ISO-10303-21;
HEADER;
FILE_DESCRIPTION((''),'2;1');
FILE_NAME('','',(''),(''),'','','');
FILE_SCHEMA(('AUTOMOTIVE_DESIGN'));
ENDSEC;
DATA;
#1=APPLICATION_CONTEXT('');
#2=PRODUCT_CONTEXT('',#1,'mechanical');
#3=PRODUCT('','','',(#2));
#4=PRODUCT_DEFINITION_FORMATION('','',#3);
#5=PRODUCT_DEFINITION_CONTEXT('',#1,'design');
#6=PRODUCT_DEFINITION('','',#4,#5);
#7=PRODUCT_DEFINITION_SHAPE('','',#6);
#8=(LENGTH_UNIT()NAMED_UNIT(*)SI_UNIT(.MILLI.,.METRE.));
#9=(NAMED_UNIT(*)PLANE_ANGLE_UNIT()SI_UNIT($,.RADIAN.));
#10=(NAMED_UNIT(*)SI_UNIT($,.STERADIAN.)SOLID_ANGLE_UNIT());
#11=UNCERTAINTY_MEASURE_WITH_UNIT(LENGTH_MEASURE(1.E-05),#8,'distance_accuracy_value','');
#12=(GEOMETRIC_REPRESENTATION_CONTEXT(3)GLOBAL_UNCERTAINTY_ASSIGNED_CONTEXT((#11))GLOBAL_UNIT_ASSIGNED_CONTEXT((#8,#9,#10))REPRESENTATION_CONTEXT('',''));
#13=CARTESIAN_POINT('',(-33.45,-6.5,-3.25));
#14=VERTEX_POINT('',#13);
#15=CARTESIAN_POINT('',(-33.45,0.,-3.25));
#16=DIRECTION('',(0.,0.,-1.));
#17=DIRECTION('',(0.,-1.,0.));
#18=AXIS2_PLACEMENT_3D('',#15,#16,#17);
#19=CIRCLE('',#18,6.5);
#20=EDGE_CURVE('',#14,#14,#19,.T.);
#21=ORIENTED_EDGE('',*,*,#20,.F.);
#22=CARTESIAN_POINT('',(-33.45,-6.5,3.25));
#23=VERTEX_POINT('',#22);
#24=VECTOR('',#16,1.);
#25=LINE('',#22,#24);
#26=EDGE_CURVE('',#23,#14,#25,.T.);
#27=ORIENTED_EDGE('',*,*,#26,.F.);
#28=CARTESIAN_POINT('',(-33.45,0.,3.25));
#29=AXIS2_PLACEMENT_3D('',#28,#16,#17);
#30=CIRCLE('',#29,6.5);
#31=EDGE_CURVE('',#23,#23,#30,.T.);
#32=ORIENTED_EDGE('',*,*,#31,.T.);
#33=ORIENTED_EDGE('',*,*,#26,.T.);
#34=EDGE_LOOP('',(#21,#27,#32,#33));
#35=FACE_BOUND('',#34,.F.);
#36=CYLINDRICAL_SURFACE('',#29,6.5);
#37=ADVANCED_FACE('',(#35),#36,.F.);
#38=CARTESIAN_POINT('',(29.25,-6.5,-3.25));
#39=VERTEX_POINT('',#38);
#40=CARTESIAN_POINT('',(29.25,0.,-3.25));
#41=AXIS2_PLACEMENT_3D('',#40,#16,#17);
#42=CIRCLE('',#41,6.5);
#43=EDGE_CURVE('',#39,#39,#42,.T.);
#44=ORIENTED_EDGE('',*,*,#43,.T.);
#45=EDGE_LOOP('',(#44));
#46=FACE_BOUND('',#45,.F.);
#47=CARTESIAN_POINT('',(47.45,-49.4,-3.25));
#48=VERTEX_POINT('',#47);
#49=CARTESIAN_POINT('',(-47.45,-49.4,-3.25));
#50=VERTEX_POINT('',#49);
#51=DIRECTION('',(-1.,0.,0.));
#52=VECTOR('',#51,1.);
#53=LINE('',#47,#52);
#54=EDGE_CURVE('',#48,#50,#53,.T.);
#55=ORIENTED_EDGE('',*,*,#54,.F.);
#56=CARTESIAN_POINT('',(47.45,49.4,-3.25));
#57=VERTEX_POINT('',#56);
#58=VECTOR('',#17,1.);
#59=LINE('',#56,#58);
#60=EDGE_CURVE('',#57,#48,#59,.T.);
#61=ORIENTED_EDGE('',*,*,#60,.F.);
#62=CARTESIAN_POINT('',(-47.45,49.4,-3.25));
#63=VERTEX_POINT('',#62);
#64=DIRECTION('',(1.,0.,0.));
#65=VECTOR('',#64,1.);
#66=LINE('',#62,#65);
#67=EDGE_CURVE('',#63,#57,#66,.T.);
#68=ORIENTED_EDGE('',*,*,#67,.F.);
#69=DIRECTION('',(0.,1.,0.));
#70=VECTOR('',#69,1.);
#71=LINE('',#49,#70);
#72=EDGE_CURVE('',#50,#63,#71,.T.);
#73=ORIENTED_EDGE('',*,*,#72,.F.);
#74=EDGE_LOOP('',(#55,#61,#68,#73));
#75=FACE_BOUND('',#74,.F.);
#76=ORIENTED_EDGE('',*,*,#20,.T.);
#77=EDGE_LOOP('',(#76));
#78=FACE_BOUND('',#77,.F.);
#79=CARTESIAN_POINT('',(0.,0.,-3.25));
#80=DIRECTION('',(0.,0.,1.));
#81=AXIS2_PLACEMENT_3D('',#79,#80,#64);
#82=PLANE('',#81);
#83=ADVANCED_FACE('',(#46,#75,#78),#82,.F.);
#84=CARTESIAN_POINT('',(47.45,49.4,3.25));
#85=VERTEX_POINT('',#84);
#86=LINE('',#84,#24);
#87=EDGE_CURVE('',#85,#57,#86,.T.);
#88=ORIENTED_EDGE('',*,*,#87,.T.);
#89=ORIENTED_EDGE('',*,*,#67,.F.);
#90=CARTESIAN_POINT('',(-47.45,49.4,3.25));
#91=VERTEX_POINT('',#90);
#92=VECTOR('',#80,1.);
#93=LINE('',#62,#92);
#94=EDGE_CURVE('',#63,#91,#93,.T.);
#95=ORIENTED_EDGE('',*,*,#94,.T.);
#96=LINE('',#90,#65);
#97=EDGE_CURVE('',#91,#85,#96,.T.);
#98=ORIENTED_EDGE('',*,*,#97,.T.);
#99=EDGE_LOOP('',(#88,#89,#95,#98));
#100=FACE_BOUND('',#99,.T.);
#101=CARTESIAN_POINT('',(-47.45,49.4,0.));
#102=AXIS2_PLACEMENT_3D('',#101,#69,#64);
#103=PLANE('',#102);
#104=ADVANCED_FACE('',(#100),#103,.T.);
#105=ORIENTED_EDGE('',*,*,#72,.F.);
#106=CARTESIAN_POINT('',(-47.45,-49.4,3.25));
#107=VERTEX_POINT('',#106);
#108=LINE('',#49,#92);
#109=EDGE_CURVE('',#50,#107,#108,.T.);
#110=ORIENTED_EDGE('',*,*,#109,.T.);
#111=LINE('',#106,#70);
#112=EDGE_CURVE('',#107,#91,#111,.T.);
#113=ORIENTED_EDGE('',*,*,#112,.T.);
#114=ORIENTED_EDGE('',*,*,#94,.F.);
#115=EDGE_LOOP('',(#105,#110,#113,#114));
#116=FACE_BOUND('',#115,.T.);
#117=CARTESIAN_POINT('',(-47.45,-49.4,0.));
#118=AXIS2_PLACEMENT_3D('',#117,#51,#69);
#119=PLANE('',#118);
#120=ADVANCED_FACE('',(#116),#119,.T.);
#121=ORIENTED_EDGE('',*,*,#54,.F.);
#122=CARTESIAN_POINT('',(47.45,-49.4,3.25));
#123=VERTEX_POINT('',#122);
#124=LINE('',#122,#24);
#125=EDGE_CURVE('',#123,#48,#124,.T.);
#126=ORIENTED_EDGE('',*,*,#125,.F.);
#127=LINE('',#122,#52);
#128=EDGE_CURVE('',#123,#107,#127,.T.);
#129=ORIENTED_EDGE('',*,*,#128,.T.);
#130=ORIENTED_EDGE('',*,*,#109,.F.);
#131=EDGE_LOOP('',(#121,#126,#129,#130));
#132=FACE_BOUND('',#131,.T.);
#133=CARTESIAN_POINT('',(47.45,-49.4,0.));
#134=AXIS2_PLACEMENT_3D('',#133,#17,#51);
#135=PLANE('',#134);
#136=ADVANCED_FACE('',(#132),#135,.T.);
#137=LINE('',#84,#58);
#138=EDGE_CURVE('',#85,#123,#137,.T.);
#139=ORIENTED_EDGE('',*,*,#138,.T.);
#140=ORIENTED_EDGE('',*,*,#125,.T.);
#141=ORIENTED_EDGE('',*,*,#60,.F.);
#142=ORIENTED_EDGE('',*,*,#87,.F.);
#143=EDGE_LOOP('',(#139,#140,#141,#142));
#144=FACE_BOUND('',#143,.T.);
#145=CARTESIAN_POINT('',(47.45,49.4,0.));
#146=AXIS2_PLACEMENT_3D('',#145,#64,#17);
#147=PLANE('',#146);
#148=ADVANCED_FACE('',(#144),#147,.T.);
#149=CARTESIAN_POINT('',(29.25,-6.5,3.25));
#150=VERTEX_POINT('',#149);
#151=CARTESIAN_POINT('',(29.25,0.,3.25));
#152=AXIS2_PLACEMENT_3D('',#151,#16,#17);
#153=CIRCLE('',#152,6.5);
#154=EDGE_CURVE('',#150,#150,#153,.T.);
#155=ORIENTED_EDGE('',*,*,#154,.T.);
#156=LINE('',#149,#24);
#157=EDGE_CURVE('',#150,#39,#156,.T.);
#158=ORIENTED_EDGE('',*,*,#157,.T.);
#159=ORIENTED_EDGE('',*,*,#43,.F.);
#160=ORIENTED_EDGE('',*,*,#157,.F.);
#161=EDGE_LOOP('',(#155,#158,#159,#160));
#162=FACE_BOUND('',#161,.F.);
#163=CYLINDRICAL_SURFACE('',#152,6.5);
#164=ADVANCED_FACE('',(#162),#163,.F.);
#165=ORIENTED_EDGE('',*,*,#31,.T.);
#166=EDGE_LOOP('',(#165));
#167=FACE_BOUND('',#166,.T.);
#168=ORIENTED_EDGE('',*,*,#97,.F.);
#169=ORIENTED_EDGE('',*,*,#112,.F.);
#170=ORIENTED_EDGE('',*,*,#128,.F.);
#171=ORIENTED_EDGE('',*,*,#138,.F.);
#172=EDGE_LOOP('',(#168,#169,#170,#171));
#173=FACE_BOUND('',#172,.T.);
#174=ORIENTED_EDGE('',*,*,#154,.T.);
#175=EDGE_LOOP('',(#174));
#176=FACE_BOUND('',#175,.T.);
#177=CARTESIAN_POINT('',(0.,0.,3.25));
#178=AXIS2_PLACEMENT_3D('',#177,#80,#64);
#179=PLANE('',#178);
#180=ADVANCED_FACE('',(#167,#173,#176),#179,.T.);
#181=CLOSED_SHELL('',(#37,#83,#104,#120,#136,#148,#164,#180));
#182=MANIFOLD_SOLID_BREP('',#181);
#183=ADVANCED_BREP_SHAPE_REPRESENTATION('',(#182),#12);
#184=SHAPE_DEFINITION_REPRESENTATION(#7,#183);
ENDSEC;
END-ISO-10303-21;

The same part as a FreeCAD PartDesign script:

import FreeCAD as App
import Part
import Sketcher

doc = App.newDocument("Part")
body = doc.addObject("PartDesign::Body", "Body")

sketch1 = body.newObject("Sketcher::SketchObject", "Sketch")
sketch1.AttachmentSupport = (doc.getObject("XY_Plane"), [""])
sketch1.MapMode = "FlatFace"
sketch1.addGeometry([
    Part.LineSegment(App.Vector(47, 49, 0), App.Vector(-47, 49, 0)),
    Part.LineSegment(App.Vector(-47, 49, 0), App.Vector(-47, -49, 0)),
    Part.LineSegment(App.Vector(-47, -49, 0), App.Vector(47, -49, 0)),
    Part.LineSegment(App.Vector(47, -49, 0), App.Vector(47, 49, 0)),
], False)
sketch1.addConstraint([
    Sketcher.Constraint("Coincident", 0, 2, 1, 1),
    Sketcher.Constraint("Coincident", 1, 2, 2, 1),
    Sketcher.Constraint("Coincident", 2, 2, 3, 1),
    Sketcher.Constraint("Coincident", 3, 2, 0, 1),
    Sketcher.Constraint("Horizontal", 0),
    Sketcher.Constraint("Vertical", 1),
    Sketcher.Constraint("Horizontal", 2),
    Sketcher.Constraint("Vertical", 3),
    Sketcher.Constraint("Symmetric", 0, 2, 2, 2, -1, 1),
    Sketcher.Constraint("DistanceX", 0, 2, 0, 1, 94.9),
    Sketcher.Constraint("DistanceY", 1, 2, 1, 1, 98.8),
])
pad1 = body.newObject("PartDesign::Pad", "Pad")
pad1.Profile = sketch1
pad1.Length = 6.5
pad1.Midplane = True

sketch2 = body.newObject("Sketcher::SketchObject", "Sketch001")
sketch2.AttachmentSupport = (doc.getObject("XY_Plane"), [""])
sketch2.MapMode = "FlatFace"
sketch2.AttachmentOffset = App.Placement(App.Vector(0, 0, 3.25), App.Rotation())
sketch2.addGeometry(Part.Circle(App.Vector(-33, 0, 0), App.Vector(0, 0, 1), 6), False)
sketch2.addConstraint([
    Sketcher.Constraint("PointOnObject", 0, 3, -1),
    Sketcher.Constraint("Diameter", 0, 13.0),
    Sketcher.Constraint("DistanceX", 0, 3, -1, 1, 33.45),
])
doc.recompute()
hole = body.newObject("PartDesign::Hole", "Hole")
hole.Profile = sketch2
hole.ThreadType = "None"
hole.Diameter = 13
hole.DepthType = "ThroughAll"

sketch3 = body.newObject("Sketcher::SketchObject", "Sketch002")
sketch3.AttachmentSupport = (doc.getObject("XY_Plane"), [""])
sketch3.MapMode = "FlatFace"
sketch3.AttachmentOffset = App.Placement(App.Vector(0, 0, 3.25), App.Rotation())
sketch3.addGeometry(Part.Circle(App.Vector(29, 0, 0), App.Vector(0, 0, 1), 6), False)
sketch3.addConstraint([
    Sketcher.Constraint("PointOnObject", 0, 3, -1),
    Sketcher.Constraint("Diameter", 0, 13.0),
    Sketcher.Constraint("DistanceX", -1, 1, 0, 3, 29.25),
])
doc.recompute()
hole2 = body.newObject("PartDesign::Hole", "Hole001")
hole2.Profile = sketch3
hole2.ThreadType = "None"
hole2.Diameter = 13
hole2.DepthType = "ThroughAll"

doc.recompute()
